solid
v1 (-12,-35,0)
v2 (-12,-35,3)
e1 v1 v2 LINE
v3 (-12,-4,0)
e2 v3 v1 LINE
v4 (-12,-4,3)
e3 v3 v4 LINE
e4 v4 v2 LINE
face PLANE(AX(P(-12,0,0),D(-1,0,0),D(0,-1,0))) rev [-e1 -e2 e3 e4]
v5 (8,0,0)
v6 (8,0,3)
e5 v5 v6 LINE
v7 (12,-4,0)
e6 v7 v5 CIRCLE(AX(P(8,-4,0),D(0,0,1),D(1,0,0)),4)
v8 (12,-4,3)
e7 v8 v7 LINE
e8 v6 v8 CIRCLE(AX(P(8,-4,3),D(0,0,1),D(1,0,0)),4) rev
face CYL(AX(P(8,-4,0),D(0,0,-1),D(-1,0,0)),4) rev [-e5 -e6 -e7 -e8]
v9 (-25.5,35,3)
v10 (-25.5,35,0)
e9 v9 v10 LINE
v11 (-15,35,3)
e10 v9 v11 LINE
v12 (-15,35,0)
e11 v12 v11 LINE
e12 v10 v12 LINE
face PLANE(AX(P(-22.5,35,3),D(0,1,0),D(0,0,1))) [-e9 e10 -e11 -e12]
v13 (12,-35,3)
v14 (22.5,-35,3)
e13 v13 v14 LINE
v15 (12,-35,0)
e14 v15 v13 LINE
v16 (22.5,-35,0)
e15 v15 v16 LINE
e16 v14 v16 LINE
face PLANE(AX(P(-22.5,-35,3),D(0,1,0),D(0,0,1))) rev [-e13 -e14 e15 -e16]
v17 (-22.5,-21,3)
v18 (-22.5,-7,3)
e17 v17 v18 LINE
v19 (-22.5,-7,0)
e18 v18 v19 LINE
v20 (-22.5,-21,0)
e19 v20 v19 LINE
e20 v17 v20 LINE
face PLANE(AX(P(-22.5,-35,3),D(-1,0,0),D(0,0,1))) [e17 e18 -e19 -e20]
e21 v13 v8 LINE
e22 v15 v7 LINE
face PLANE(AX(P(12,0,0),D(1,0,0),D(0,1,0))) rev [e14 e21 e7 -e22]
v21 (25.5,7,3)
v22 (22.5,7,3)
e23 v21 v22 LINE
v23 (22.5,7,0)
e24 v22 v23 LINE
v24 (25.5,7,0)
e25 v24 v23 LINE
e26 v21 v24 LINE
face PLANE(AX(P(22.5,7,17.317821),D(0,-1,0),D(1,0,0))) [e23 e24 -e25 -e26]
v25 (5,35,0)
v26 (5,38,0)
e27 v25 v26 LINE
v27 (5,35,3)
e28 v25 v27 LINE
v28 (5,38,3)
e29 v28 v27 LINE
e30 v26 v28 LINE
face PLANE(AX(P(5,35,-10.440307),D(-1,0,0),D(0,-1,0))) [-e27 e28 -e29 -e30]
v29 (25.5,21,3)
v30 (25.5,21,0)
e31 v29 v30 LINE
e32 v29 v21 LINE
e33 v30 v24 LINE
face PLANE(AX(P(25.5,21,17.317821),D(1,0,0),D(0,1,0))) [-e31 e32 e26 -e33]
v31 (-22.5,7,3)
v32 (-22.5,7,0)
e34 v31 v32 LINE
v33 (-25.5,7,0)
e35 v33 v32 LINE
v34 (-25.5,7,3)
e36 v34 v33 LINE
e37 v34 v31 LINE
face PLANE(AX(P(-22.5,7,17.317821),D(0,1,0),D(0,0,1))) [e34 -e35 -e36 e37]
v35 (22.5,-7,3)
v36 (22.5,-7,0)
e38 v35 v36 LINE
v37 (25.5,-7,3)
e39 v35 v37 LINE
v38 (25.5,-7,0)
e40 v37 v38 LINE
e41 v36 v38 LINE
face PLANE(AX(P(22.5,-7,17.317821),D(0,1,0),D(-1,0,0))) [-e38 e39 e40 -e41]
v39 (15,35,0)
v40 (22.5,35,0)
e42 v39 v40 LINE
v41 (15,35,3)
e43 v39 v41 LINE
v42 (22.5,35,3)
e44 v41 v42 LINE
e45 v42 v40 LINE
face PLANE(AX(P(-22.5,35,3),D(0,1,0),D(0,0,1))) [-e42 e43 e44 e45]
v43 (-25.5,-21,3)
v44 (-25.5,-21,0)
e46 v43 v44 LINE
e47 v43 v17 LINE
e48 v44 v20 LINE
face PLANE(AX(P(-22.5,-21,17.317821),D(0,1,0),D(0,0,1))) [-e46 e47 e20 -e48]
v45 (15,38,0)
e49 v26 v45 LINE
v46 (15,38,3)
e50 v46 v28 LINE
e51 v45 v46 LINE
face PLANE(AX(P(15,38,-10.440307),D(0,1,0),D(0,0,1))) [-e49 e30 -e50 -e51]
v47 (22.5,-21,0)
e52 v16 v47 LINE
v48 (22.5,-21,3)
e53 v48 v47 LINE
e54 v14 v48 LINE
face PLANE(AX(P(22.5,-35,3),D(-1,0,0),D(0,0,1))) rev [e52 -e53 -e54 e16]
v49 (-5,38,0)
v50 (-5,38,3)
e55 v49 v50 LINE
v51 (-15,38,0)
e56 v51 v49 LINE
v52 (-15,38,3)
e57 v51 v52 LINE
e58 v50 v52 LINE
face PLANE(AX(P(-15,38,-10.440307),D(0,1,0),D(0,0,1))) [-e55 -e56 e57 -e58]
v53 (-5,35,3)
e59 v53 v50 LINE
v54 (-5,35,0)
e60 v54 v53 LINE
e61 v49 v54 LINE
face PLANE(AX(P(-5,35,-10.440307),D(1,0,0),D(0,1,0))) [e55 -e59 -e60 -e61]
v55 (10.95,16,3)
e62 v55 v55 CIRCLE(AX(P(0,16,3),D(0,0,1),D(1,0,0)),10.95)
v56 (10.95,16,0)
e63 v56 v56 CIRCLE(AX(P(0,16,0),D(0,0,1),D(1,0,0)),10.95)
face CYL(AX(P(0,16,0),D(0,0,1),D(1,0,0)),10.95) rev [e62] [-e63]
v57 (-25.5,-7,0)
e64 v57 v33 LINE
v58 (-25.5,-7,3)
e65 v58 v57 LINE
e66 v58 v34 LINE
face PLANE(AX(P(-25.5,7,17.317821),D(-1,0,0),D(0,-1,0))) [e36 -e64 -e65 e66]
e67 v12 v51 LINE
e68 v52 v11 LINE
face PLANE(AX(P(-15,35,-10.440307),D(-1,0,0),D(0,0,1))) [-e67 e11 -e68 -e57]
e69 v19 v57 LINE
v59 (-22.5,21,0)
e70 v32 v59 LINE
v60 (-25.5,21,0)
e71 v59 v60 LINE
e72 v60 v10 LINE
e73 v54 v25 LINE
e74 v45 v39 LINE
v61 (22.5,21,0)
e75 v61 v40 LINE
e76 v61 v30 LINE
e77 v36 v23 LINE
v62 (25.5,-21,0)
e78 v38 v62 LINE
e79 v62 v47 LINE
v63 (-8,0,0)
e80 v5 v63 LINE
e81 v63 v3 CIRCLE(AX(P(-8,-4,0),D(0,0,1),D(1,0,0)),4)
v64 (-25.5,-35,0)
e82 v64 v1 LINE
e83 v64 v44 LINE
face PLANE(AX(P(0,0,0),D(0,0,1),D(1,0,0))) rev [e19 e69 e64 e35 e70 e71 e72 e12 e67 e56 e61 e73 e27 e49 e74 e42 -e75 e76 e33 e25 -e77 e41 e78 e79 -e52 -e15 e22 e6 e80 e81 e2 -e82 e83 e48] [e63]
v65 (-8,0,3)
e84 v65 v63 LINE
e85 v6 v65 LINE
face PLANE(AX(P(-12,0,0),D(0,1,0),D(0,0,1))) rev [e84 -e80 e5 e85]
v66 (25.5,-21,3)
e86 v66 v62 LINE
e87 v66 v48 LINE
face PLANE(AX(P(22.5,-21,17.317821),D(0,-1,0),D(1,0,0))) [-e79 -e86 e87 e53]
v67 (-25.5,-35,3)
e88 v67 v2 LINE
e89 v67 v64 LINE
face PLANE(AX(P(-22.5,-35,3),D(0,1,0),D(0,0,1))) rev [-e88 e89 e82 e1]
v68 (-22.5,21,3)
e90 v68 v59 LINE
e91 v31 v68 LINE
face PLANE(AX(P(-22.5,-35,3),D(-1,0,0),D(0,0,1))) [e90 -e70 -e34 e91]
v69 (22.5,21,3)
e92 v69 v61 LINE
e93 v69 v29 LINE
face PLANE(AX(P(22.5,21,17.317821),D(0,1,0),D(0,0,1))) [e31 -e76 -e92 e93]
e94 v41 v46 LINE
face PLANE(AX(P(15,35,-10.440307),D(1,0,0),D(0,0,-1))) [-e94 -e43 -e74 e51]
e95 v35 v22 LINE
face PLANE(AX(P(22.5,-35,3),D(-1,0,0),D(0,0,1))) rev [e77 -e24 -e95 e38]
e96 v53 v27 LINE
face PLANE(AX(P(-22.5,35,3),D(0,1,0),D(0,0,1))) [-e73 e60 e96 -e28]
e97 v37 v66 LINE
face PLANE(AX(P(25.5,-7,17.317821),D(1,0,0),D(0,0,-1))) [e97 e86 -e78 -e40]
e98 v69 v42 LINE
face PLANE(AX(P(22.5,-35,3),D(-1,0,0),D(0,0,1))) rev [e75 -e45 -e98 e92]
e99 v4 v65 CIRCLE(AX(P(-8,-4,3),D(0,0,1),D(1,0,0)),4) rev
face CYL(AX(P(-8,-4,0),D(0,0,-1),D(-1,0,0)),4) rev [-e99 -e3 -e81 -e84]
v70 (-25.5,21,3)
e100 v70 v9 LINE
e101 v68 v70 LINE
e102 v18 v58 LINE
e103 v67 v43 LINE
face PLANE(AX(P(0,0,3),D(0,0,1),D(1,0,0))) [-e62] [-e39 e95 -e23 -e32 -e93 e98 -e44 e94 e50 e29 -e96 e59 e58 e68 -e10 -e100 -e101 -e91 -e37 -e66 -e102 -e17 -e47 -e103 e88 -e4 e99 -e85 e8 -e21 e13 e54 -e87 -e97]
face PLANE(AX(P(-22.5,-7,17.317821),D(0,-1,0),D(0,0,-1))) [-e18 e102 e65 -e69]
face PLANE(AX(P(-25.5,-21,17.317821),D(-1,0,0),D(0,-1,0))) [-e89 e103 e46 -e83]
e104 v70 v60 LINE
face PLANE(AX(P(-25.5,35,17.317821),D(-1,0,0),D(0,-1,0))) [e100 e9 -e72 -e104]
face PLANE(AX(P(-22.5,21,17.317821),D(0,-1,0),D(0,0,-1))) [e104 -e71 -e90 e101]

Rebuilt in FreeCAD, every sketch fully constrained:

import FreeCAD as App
import Part
import Sketcher
from FreeCAD import Vector
Q = App.Units.Quantity


def edges_at(feature, points):
    """Names of the edges that pass closest to the given points."""
    edges = feature.Shape.Edges
    near = lambda p: min(range(len(edges)), key=lambda i: edges[i].distToShape(Part.Vertex(*p))[0])
    return sorted({f"Edge{near(p) + 1}" for p in points})

doc = App.newDocument("Part")
params = doc.addObject("Spreadsheet::Sheet", "Params")
for row, (alias, value) in enumerate([
    ("sketch1_width", "45 mm"),
    ("sketch1_height", "70 mm"),
    ("pad1_length", "3 mm"),
    ("sketch2_diameter", "21.9 mm"),
    ("sketch2_width", "24 mm"),
    ("sketch2_height", "35 mm"),
    ("fillet_radius", "4 mm"),
    ("sketch3_width", "10 mm"),
    ("sketch3_height", "3 mm"),
    ("pad2_length", "3 mm"),
    ("sketch4_width", "3 mm"),
    ("sketch4_height", "14 mm"),
    ("pad3_length", "3 mm"),
], start=1):
    params.set(f"A{row}", alias)
    params.set(f"B{row}", "=" + value)
    params.setAlias(f"B{row}", alias)

body = doc.addObject("PartDesign::Body", "Body")

sketch1 = body.newObject("Sketcher::SketchObject", "Sketch")
sketch1.AttachmentSupport = (doc.getObject("XY_Plane"), [""])
sketch1.MapMode = "FlatFace"
sketch1.addGeometry(Part.LineSegment(Vector(-22, 35, 0), Vector(-22, -35, 0)), False)
sketch1.addGeometry(Part.LineSegment(Vector(-22, -35, 0), Vector(22, -35, 0)), False)
sketch1.addGeometry(Part.LineSegment(Vector(22, -35, 0), Vector(22, 35, 0)), False)
sketch1.addGeometry(Part.LineSegment(Vector(22, 35, 0), Vector(-22, 35, 0)), False)
sketch1.addConstraint(Sketcher.Constraint("Coincident", 0, 2, 1, 1))
sketch1.addConstraint(Sketcher.Constraint("Coincident", 1, 2, 2, 1))
sketch1.addConstraint(Sketcher.Constraint("Coincident", 2, 2, 3, 1))
sketch1.addConstraint(Sketcher.Constraint("Coincident", 3, 2, 0, 1))
sketch1.addConstraint(Sketcher.Constraint("Vertical", 0))
sketch1.addConstraint(Sketcher.Constraint("Horizontal", 1))
sketch1.addConstraint(Sketcher.Constraint("Vertical", 2))
sketch1.addConstraint(Sketcher.Constraint("Horizontal", 3))
sketch1.addConstraint(Sketcher.Constraint("Symmetric", 0, 2, 2, 2, -1, 1))
sketch1.addConstraint(Sketcher.Constraint("DistanceX", 1, 1, 1, 2, Q("45 mm")))
sketch1.addConstraint(Sketcher.Constraint("DistanceY", 0, 2, 0, 1, Q("70 mm")))
sketch1.setExpression("Constraints[9]", "Params.sketch1_width")
sketch1.setExpression("Constraints[10]", "Params.sketch1_height")
pad1 = body.newObject("PartDesign::Pad", "Pad")
pad1.Profile = sketch1
pad1.setExpression("Length", "Params.pad1_length")

sketch2 = body.newObject("Sketcher::SketchObject", "Sketch001")
sketch2.AttachmentSupport = (doc.getObject("XY_Plane"), [""])
sketch2.MapMode = "FlatFace"
sketch2.AttachmentOffset = App.Placement(Vector(0, 0, 3), App.Rotation())
sketch2.addGeometry(Part.Circle(Vector(0, 16, 0), Vector(0, 0, 1), 11), False)
sketch2.addGeometry(Part.LineSegment(Vector(-12, 0, 0), Vector(-12, -35, 0)), False)
sketch2.addGeometry(Part.LineSegment(Vector(-12, -35, 0), Vector(12, -35, 0)), False)
sketch2.addGeometry(Part.LineSegment(Vector(12, -35, 0), Vector(12, 0, 0)), False)
sketch2.addGeometry(Part.LineSegment(Vector(12, 0, 0), Vector(-12, 0, 0)), False)
sketch2.addConstraint(Sketcher.Constraint("Coincident", 1, 2, 2, 1))
sketch2.addConstraint(Sketcher.Constraint("Coincident", 2, 2, 3, 1))
sketch2.addConstraint(Sketcher.Constraint("Coincident", 3, 2, 4, 1))
sketch2.addConstraint(Sketcher.Constraint("Coincident", 4, 2, 1, 1))
sketch2.addConstraint(Sketcher.Constraint("Vertical", 1))
sketch2.addConstraint(Sketcher.Constraint("Horizontal", 2))
sketch2.addConstraint(Sketcher.Constraint("Vertical", 3))
sketch2.addConstraint(Sketcher.Constraint("Horizontal", 4))
sketch2.addConstraint(Sketcher.Constraint("Symmetric", 3, 2, 4, 2, -1, 1))
sketch2.addConstraint(Sketcher.Constraint("PointOnObject", 0, 3, -2))
sketch2.addConstraint(Sketcher.Constraint("Diameter", 0, Q("21.9 mm")))
sketch2.addConstraint(Sketcher.Constraint("DistanceX", 2, 1, 2, 2, Q("24 mm")))
sketch2.addConstraint(Sketcher.Constraint("DistanceY", 1, 2, 1, 1, Q("35 mm")))
sketch2.addConstraint(Sketcher.Constraint("DistanceY", -1, 1, 0, 3, Q("16 mm")))
sketch2.setExpression("Constraints[10]", "Params.sketch2_diameter")
sketch2.setExpression("Constraints[11]", "Params.sketch2_width")
sketch2.setExpression("Constraints[12]", "Params.sketch2_height")
pocket1 = body.newObject("PartDesign::Pocket", "Pocket")
pocket1.Profile = sketch2
pocket1.Type = "ThroughAll"
doc.recompute()

fillet = body.newObject("PartDesign::Fillet", "Fillet")
fillet.Base = (pocket1, edges_at(pocket1, [(12, 0, 1.5), (-12, 0, 1.5)]))
fillet.setExpression("Radius", "Params.fillet_radius")

sketch3 = body.newObject("Sketcher::SketchObject", "Sketch002")
sketch3.AttachmentSupport = (doc.getObject("XY_Plane"), [""])
sketch3.MapMode = "FlatFace"
sketch3.AttachmentOffset = App.Placement(Vector(0, 0, 3), App.Rotation())
sketch3.addGeometry(Part.LineSegment(Vector(-15, 38, 0), Vector(-15, 35, 0)), False)
sketch3.addGeometry(Part.LineSegment(Vector(-15, 35, 0), Vector(-5, 35, 0)), False)
sketch3.addGeometry(Part.LineSegment(Vector(-5, 35, 0), Vector(-5, 38, 0)), False)
sketch3.addGeometry(Part.LineSegment(Vector(-5, 38, 0), Vector(-15, 38, 0)), False)
sketch3.addGeometry(Part.LineSegment(Vector(5, 38, 0), Vector(5, 35, 0)), False)
sketch3.addGeometry(Part.LineSegment(Vector(5, 35, 0), Vector(15, 35, 0)), False)
sketch3.addGeometry(Part.LineSegment(Vector(15, 35, 0), Vector(15, 38, 0)), False)
sketch3.addGeometry(Part.LineSegment(Vector(15, 38, 0), Vector(5, 38, 0)), False)
sketch3.addConstraint(Sketcher.Constraint("Coincident", 0, 2, 1, 1))
sketch3.addConstraint(Sketcher.Constraint("Coincident", 1, 2, 2, 1))
sketch3.addConstraint(Sketcher.Constraint("Coincident", 2, 2, 3, 1))
sketch3.addConstraint(Sketcher.Constraint("Coincident", 3, 2, 0, 1))
sketch3.addConstraint(Sketcher.Constraint("Coincident", 4, 2, 5, 1))
sketch3.addConstraint(Sketcher.Constraint("Coincident", 5, 2, 6, 1))
sketch3.addConstraint(Sketcher.Constraint("Coincident", 6, 2, 7, 1))
sketch3.addConstraint(Sketcher.Constraint("Coincident", 7, 2, 4, 1))
sketch3.addConstraint(Sketcher.Constraint("Vertical", 0))
sketch3.addConstraint(Sketcher.Constraint("Horizontal", 1))
sketch3.addConstraint(Sketcher.Constraint("Vertical", 2))
sketch3.addConstraint(Sketcher.Constraint("Horizontal", 3))
sketch3.addConstraint(Sketcher.Constraint("Vertical", 4))
sketch3.addConstraint(Sketcher.Constraint("Horizontal", 5))
sketch3.addConstraint(Sketcher.Constraint("Vertical", 6))
sketch3.addConstraint(Sketcher.Constraint("Horizontal", 7))
sketch3.addConstraint(Sketcher.Constraint("Symmetric", 1, 2, 4, 2, -2))
sketch3.addConstraint(Sketcher.Constraint("Symmetric", 3, 2, 6, 2, -2))
sketch3.addConstraint(Sketcher.Constraint("DistanceX", 1, 1, 1, 2, Q("10 mm")))
sketch3.addConstraint(Sketcher.Constraint("DistanceY", 0, 2, 0, 1, Q("3 mm")))
sketch3.addConstraint(Sketcher.Constraint("DistanceX", 0, 2, -1, 1, Q("15 mm")))
sketch3.addConstraint(Sketcher.Constraint("DistanceY", -1, 1, 0, 2, Q("35 mm")))
sketch3.setExpression("Constraints[18]", "Params.sketch3_width")
sketch3.setExpression("Constraints[19]", "Params.sketch3_height")
pad2 = body.newObject("PartDesign::Pad", "Pad001")
pad2.Profile = sketch3
pad2.setExpression("Length", "Params.pad2_length")
pad2.Reversed = True

sketch4 = body.newObject("Sketcher::SketchObject", "Sketch003")
sketch4.AttachmentSupport = (doc.getObject("XY_Plane"), [""])
sketch4.MapMode = "FlatFace"
sketch4.addGeometry(Part.LineSegment(Vector(-22.5, 7, 0), Vector(-22.5, -7, 0)), False)
sketch4.addGeometry(Part.LineSegment(Vector(-22.5, -7, 0), Vector(-25.5, -7, 0)), False)
sketch4.addGeometry(Part.LineSegment(Vector(-25.5, -7, 0), Vector(-25.5, 7, 0)), False)
sketch4.addGeometry(Part.LineSegment(Vector(-25.5, 7, 0), Vector(-22.5, 7, 0)), False)
sketch4.addGeometry(Part.LineSegment(Vector(-22.5, 35, 0), Vector(-22.5, 21, 0)), False)
sketch4.addGeometry(Part.LineSegment(Vector(-22.5, 21, 0), Vector(-25.5, 21, 0)), False)
sketch4.addGeometry(Part.LineSegment(Vector(-25.5, 21, 0), Vector(-25.5, 35, 0)), False)
sketch4.addGeometry(Part.LineSegment(Vector(-25.5, 35, 0), Vector(-22.5, 35, 0)), False)
sketch4.addGeometry(Part.LineSegment(Vector(-22.5, -21, 0), Vector(-22.5, -35, 0)), False)
sketch4.addGeometry(Part.LineSegment(Vector(-22.5, -35, 0), Vector(-25.5, -35, 0)), False)
sketch4.addGeometry(Part.LineSegment(Vector(-25.5, -35, 0), Vector(-25.5, -21, 0)), False)
sketch4.addGeometry(Part.LineSegment(Vector(-25.5, -21, 0), Vector(-22.5, -21, 0)), False)
sketch4.addGeometry(Part.LineSegment(Vector(25.5, 21, 0), Vector(25.5, 7, 0)), False)
sketch4.addGeometry(Part.LineSegment(Vector(25.5, 7, 0), Vector(22.5, 7, 0)), False)
sketch4.addGeometry(Part.LineSegment(Vector(22.5, 7, 0), Vector(22.5, 21, 0)), False)
sketch4.addGeometry(Part.LineSegment(Vector(22.5, 21, 0), Vector(25.5, 21, 0)), False)
sketch4.addGeometry(Part.LineSegment(Vector(25.5, -7, 0), Vector(25.5, -21, 0)), False)
sketch4.addGeometry(Part.LineSegment(Vector(25.5, -21, 0), Vector(22.5, -21, 0)), False)
sketch4.addGeometry(Part.LineSegment(Vector(22.5, -21, 0), Vector(22.5, -7, 0)), False)
sketch4.addGeometry(Part.LineSegment(Vector(22.5, -7, 0), Vector(25.5, -7, 0)), False)
sketch4.addConstraint(Sketcher.Constraint("Coincident", 0, 2, 1, 1))
sketch4.addConstraint(Sketcher.Constraint("Coincident", 1, 2, 2, 1))
sketch4.addConstraint(Sketcher.Constraint("Coincident", 2, 2, 3, 1))
sketch4.addConstraint(Sketcher.Constraint("Coincident", 3, 2, 0, 1))
sketch4.addConstraint(Sketcher.Constraint("Coincident", 4, 2, 5, 1))
sketch4.addConstraint(Sketcher.Constraint("Coincident", 5, 2, 6, 1))
sketch4.addConstraint(Sketcher.Constraint("Coincident", 6, 2, 7, 1))
sketch4.addConstraint(Sketcher.Constraint("Coincident", 7, 2, 4, 1))
sketch4.addConstraint(Sketcher.Constraint("Coincident", 8, 2, 9, 1))
sketch4.addConstraint(Sketcher.Constraint("Coincident", 9, 2, 10, 1))
sketch4.addConstraint(Sketcher.Constraint("Coincident", 10, 2, 11, 1))
sketch4.addConstraint(Sketcher.Constraint("Coincident", 11, 2, 8, 1))
sketch4.addConstraint(Sketcher.Constraint("Coincident", 12, 2, 13, 1))
sketch4.addConstraint(Sketcher.Constraint("Coincident", 13, 2, 14, 1))
sketch4.addConstraint(Sketcher.Constraint("Coincident", 14, 2, 15, 1))
sketch4.addConstraint(Sketcher.Constraint("Coincident", 15, 2, 12, 1))
sketch4.addConstraint(Sketcher.Constraint("Coincident", 16, 2, 17, 1))
sketch4.addConstraint(Sketcher.Constraint("Coincident", 17, 2, 18, 1))
sketch4.addConstraint(Sketcher.Constraint("Coincident", 18, 2, 19, 1))
sketch4.addConstraint(Sketcher.Constraint("Coincident", 19, 2, 16, 1))
sketch4.addConstraint(Sketcher.Constraint("Vertical", 0))
sketch4.addConstraint(Sketcher.Constraint("Horizontal", 1))
sketch4.addConstraint(Sketcher.Constraint("Vertical", 2))
sketch4.addConstraint(Sketcher.Constraint("Horizontal", 3))
sketch4.addConstraint(Sketcher.Constraint("Vertical", 4))
sketch4.addConstraint(Sketcher.Constraint("Horizontal", 5))
sketch4.addConstraint(Sketcher.Constraint("Vertical", 6))
sketch4.addConstraint(Sketcher.Constraint("Horizontal", 7))
sketch4.addConstraint(Sketcher.Constraint("Vertical", 8))
sketch4.addConstraint(Sketcher.Constraint("Horizontal", 9))
sketch4.addConstraint(Sketcher.Constraint("Vertical", 10))
sketch4.addConstraint(Sketcher.Constraint("Horizontal", 11))
sketch4.addConstraint(Sketcher.Constraint("Vertical", 12))
sketch4.addConstraint(Sketcher.Constraint("Horizontal", 13))
sketch4.addConstraint(Sketcher.Constraint("Vertical", 14))
sketch4.addConstraint(Sketcher.Constraint("Horizontal", 15))
sketch4.addConstraint(Sketcher.Constraint("Vertical", 16))
sketch4.addConstraint(Sketcher.Constraint("Horizontal", 17))
sketch4.addConstraint(Sketcher.Constraint("Vertical", 18))
sketch4.addConstraint(Sketcher.Constraint("Horizontal", 19))
sketch4.addConstraint(Sketcher.Constraint("Symmetric", 1, 2, 12, 2, -1, 1))
sketch4.addConstraint(Sketcher.Constraint("Symmetric", 11, 2, 14, 2, -1, 1))
sketch4.addConstraint(Sketcher.Constraint("Symmetric", 5, 2, 16, 2, -1, 1))
sketch4.addConstraint(Sketcher.Constraint("Symmetric", 3, 2, 18, 2, -1, 1))
sketch4.addConstraint(Sketcher.Constraint("Symmetric", 3, 2, 13, 2, -2))
sketch4.addConstraint(Sketcher.Constraint("Symmetric", 4, 2, 14, 2, -2))
sketch4.addConstraint(Sketcher.Constraint("Symmetric", 6, 2, 9, 2, -1))
sketch4.addConstraint(Sketcher.Constraint("Vertical", 2, 2, 5, 2))
sketch4.addConstraint(Sketcher.Constraint("Equal", 2, 4))
sketch4.addConstraint(Sketcher.Constraint("Equal", 10, 12))
sketch4.addConstraint(Sketcher.Constraint("DistanceX", 1, 2, 1, 1, Q("3 mm")))
sketch4.addConstraint(Sketcher.Constraint("DistanceY", 0, 2, 0, 1, Q("14 mm")))
sketch4.addConstraint(Sketcher.Constraint("DistanceX", 3, 2, 12, 2, Q("48 mm")))
sketch4.setExpression("Constraints[50]", "Params.sketch4_width")
sketch4.setExpression("Constraints[51]", "Params.sketch4_height")
pad3 = body.newObject("PartDesign::Pad", "Pad002")
pad3.Profile = sketch4
pad3.setExpression("Length", "Params.pad3_length")

doc.recompute()
